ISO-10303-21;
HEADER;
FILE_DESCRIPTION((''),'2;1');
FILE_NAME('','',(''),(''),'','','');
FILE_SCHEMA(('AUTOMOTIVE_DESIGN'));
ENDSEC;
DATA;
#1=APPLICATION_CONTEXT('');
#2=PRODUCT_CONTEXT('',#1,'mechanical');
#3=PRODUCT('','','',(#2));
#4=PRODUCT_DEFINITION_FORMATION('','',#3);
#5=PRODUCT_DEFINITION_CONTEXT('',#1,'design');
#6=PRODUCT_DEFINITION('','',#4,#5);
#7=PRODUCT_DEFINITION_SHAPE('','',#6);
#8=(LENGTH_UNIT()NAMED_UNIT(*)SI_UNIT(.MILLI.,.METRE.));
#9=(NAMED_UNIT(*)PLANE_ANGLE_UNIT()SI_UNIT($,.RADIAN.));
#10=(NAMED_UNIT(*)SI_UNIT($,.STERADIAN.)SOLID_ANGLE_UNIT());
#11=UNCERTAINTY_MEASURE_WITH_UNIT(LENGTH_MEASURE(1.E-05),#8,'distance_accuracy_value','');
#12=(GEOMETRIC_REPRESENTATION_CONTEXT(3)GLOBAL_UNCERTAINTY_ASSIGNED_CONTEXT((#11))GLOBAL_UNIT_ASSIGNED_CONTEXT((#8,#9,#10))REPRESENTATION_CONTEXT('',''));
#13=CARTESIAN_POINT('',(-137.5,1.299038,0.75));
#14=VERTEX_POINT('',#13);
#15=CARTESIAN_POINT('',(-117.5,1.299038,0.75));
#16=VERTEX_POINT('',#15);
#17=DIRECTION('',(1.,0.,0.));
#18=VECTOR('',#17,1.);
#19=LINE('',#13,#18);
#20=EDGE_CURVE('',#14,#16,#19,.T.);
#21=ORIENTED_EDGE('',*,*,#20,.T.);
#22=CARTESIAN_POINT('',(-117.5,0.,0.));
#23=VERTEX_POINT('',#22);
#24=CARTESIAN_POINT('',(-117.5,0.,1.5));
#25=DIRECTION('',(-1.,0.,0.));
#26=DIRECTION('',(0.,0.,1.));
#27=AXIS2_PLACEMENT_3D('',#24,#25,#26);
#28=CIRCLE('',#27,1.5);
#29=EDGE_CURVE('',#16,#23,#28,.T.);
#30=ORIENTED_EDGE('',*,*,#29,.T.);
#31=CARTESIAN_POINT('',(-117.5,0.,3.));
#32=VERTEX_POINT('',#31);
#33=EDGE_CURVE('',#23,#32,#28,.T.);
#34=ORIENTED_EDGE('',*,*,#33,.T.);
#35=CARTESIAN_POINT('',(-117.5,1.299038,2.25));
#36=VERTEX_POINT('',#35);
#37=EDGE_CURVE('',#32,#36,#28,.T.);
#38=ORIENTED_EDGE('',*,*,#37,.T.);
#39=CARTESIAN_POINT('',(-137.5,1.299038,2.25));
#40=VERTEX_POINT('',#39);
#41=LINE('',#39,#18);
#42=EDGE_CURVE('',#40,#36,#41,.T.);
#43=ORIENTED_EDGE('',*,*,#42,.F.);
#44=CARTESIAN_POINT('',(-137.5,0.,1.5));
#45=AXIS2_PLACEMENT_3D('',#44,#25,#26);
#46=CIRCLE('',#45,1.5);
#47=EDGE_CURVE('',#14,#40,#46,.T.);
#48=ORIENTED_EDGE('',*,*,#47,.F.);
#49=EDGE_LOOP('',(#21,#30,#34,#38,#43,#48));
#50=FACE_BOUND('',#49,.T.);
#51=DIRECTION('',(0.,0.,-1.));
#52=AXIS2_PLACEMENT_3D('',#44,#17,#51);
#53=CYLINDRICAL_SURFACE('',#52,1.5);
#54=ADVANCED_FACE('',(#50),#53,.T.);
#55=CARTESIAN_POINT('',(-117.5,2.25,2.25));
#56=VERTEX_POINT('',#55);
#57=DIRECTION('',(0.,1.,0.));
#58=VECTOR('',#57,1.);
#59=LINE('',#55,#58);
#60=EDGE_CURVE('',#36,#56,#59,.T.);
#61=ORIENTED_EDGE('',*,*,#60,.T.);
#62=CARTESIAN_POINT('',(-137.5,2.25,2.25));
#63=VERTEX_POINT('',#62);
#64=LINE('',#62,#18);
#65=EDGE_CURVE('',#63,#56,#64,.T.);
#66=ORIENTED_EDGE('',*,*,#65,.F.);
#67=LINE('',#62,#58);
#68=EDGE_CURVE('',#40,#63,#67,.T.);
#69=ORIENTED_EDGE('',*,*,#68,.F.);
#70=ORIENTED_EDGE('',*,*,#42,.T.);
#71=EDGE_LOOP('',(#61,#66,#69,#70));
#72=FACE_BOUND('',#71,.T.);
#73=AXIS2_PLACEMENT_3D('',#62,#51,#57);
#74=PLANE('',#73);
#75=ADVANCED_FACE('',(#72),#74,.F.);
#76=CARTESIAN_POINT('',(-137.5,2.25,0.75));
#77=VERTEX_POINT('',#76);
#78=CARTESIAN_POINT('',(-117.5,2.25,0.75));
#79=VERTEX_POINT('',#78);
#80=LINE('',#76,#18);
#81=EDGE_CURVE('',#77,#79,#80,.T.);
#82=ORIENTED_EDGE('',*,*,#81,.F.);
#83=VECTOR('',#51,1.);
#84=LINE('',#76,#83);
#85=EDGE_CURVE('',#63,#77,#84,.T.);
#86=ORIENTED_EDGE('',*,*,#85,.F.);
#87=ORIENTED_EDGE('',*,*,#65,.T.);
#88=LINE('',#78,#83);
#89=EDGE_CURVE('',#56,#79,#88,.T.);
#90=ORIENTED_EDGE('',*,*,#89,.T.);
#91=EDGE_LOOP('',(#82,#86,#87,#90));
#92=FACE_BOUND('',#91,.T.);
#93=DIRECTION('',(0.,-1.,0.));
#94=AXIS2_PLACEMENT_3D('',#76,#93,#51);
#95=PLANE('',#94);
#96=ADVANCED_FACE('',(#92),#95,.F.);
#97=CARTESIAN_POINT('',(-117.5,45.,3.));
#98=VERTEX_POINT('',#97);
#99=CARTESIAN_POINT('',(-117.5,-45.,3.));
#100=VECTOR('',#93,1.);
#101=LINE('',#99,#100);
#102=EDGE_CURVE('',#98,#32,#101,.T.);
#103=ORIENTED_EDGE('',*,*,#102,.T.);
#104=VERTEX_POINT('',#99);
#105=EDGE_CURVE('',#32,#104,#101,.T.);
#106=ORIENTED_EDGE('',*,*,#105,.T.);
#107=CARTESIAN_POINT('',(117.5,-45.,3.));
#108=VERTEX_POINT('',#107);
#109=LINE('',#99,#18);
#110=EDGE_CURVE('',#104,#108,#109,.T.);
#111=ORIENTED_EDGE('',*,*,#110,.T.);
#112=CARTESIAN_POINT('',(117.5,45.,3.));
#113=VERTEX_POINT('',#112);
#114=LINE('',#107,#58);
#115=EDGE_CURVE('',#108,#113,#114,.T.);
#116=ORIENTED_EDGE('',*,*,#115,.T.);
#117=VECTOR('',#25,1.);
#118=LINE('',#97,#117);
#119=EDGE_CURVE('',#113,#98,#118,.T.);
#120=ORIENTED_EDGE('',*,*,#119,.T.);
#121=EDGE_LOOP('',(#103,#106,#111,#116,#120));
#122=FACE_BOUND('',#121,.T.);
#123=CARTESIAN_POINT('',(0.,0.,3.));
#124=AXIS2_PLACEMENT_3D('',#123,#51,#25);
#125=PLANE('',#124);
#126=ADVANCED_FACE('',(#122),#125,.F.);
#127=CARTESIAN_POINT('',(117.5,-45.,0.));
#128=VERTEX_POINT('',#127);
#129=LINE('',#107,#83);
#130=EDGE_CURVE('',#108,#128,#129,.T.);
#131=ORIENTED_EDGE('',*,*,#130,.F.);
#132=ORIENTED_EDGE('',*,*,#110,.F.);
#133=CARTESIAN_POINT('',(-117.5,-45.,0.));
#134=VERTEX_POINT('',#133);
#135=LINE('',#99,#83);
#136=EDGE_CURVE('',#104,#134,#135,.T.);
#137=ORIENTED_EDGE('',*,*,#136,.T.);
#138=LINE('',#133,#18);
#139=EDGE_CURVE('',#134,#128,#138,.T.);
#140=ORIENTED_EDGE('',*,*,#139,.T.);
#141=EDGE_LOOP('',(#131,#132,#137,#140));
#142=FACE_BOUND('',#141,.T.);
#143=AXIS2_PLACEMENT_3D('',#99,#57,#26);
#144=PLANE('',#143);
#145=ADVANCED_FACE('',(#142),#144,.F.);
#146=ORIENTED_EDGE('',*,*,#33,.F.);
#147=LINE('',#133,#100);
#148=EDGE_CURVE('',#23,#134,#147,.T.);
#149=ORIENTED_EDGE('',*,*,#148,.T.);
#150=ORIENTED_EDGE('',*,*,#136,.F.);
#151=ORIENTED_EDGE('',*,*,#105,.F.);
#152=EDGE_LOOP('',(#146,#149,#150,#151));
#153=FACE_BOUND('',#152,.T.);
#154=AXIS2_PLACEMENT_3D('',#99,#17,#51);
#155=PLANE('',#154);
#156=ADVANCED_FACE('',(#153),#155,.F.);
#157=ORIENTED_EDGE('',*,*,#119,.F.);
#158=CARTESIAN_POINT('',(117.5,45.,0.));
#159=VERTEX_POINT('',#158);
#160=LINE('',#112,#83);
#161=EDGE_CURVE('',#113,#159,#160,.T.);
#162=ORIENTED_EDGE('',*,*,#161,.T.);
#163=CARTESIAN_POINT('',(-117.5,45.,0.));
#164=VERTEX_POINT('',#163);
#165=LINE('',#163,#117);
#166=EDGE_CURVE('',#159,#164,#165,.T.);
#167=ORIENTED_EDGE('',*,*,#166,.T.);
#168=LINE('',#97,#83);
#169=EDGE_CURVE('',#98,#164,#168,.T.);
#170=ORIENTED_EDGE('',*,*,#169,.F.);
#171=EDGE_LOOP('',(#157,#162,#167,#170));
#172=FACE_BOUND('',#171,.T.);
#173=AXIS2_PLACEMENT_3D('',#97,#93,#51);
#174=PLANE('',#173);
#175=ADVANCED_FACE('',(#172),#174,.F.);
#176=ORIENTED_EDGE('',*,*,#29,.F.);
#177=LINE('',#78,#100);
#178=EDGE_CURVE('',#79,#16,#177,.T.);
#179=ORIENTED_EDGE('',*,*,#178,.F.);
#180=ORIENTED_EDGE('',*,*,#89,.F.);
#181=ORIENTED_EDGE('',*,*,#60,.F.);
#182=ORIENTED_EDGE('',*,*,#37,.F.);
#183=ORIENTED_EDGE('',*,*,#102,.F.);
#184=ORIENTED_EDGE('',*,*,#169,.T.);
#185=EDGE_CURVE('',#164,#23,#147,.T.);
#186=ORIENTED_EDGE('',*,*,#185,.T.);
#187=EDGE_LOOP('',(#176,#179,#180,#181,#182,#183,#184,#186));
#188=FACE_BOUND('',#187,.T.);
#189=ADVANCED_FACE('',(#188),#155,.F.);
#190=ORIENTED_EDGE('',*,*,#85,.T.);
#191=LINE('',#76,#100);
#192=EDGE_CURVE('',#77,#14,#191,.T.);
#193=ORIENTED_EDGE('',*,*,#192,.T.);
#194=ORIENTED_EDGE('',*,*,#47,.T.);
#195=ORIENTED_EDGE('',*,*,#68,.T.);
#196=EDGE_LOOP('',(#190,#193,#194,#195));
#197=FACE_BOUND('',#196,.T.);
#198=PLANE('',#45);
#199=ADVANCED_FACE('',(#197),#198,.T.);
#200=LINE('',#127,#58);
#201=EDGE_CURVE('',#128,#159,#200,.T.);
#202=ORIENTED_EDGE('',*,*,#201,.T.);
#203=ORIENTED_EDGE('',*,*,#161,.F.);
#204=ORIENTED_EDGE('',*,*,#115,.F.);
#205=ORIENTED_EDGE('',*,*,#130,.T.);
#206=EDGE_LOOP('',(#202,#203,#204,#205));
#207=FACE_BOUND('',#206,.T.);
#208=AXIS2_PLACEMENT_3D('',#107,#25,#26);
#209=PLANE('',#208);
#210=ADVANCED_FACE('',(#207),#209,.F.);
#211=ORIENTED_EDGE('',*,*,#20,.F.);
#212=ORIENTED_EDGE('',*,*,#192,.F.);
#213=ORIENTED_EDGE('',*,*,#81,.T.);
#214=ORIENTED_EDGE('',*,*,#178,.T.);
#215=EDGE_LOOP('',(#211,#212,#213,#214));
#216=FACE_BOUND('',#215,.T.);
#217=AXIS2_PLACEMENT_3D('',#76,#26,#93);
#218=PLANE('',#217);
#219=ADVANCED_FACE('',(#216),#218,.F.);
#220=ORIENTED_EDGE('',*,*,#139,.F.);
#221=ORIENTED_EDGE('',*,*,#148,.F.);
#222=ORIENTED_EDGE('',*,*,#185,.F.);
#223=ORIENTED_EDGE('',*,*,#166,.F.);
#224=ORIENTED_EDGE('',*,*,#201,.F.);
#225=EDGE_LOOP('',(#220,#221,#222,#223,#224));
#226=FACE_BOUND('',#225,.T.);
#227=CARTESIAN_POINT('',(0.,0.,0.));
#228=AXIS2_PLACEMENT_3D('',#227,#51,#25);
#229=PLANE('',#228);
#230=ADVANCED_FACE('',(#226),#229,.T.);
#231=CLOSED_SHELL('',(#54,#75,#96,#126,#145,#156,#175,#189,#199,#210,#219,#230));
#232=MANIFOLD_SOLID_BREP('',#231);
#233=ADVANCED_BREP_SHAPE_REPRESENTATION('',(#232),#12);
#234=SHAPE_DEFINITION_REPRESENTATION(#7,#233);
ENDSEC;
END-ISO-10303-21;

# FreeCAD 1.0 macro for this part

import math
import FreeCAD as App
import Part
import Sketcher
Q = App.Units.Quantity

doc = App.newDocument("Part")
body = doc.addObject("PartDesign::Body", "Body")

# Sketch on XY plane
sketch1 = body.newObject("Sketcher::SketchObject", "Sketch")
sketch1.AttachmentSupport = (doc.getObject("XY_Plane"), [""])
sketch1.MapMode = "FlatFace"
sketch1.addGeometry(Part.LineSegment(App.Vector(-118, 45, 0), App.Vector(-118, -45, 0)), False)
sketch1.addGeometry(Part.LineSegment(App.Vector(-118, -45, 0), App.Vector(118, -45, 0)), False)
sketch1.addGeometry(Part.LineSegment(App.Vector(118, -45, 0), App.Vector(118, 45, 0)), False)
sketch1.addGeometry(Part.LineSegment(App.Vector(118, 45, 0), App.Vector(-118, 45, 0)), False)
sketch1.addConstraint(Sketcher.Constraint("Coincident", 0, 2, 1, 1))
sketch1.addConstraint(Sketcher.Constraint("Coincident", 1, 2, 2, 1))
sketch1.addConstraint(Sketcher.Constraint("Coincident", 2, 2, 3, 1))
sketch1.addConstraint(Sketcher.Constraint("Coincident", 3, 2, 0, 1))
sketch1.addConstraint(Sketcher.Constraint("Vertical", 0))
sketch1.addConstraint(Sketcher.Constraint("Horizontal", 1))
sketch1.addConstraint(Sketcher.Constraint("Vertical", 2))
sketch1.addConstraint(Sketcher.Constraint("Horizontal", 3))
sketch1.addConstraint(Sketcher.Constraint("Symmetric", 0, 2, 2, 2, -1, 1))
sketch1.addConstraint(Sketcher.Constraint("DistanceX", 1, 1, 1, 2, Q("235 mm")))
sketch1.addConstraint(Sketcher.Constraint("DistanceY", 0, 2, 0, 1, Q("90 mm")))
pad1 = body.newObject("PartDesign::Pad", "Pad")
pad1.Profile = sketch1
pad1.Length = 3

# Sketch on YZ plane
sketch2 = body.newObject("Sketcher::SketchObject", "Sketch001")
sketch2.AttachmentSupport = (doc.getObject("YZ_Plane"), [""])
sketch2.MapMode = "FlatFace"
sketch2.AttachmentOffset = App.Placement(App.Vector(0, 0, -117.5), App.Rotation())
sketch2.addGeometry(Part.LineSegment(App.Vector(2.2, 2.2, 0), App.Vector(2.2, 0.8, 0)), False)
sketch2.addGeometry(Part.LineSegment(App.Vector(2.2, 0.8, 0), App.Vector(1.3, 0.8, 0)), False)
sketch2.addGeometry(Part.ArcOfCircle(Part.Circle(App.Vector(0, 1.5, 0), App.Vector(0, 0, 1), 1.5), math.radians(30), math.radians(330)), False)
sketch2.addGeometry(Part.LineSegment(App.Vector(1.3, 2.2, 0), App.Vector(2.2, 2.2, 0)), False)
sketch2.addConstraint(Sketcher.Constraint("Coincident", 0, 2, 1, 1))
sketch2.addConstraint(Sketcher.Constraint("Coincident", 1, 2, 2, 2))
sketch2.addConstraint(Sketcher.Constraint("Coincident", 2, 1, 3, 1))
sketch2.addConstraint(Sketcher.Constraint("Coincident", 3, 2, 0, 1))
sketch2.addConstraint(Sketcher.Constraint("Vertical", 0))
sketch2.addConstraint(Sketcher.Constraint("Horizontal", 1))
sketch2.addConstraint(Sketcher.Constraint("Horizontal", 3))
sketch2.addConstraint(Sketcher.Constraint("PointOnObject", 2, 3, -2))
sketch2.addConstraint(Sketcher.Constraint("Vertical", 1, 2, 2, 1))
sketch2.addConstraint(Sketcher.Constraint("Radius", 2, Q("1.5 mm")))
sketch2.addConstraint(Sketcher.Constraint("DistanceY", 0, 2, 0, 1, Q("1.5 mm")))
sketch2.addConstraint(Sketcher.Constraint("DistanceY", -1, 1, 2, 3, Q("1.5 mm")))
sketch2.addConstraint(Sketcher.Constraint("DistanceX", -1, 1, 0, 2, Q("2.25 mm")))
pad2 = body.newObject("PartDesign::Pad", "Pad001")
pad2.Profile = sketch2
pad2.Length = 20
pad2.Reversed = True

doc.recompute()
